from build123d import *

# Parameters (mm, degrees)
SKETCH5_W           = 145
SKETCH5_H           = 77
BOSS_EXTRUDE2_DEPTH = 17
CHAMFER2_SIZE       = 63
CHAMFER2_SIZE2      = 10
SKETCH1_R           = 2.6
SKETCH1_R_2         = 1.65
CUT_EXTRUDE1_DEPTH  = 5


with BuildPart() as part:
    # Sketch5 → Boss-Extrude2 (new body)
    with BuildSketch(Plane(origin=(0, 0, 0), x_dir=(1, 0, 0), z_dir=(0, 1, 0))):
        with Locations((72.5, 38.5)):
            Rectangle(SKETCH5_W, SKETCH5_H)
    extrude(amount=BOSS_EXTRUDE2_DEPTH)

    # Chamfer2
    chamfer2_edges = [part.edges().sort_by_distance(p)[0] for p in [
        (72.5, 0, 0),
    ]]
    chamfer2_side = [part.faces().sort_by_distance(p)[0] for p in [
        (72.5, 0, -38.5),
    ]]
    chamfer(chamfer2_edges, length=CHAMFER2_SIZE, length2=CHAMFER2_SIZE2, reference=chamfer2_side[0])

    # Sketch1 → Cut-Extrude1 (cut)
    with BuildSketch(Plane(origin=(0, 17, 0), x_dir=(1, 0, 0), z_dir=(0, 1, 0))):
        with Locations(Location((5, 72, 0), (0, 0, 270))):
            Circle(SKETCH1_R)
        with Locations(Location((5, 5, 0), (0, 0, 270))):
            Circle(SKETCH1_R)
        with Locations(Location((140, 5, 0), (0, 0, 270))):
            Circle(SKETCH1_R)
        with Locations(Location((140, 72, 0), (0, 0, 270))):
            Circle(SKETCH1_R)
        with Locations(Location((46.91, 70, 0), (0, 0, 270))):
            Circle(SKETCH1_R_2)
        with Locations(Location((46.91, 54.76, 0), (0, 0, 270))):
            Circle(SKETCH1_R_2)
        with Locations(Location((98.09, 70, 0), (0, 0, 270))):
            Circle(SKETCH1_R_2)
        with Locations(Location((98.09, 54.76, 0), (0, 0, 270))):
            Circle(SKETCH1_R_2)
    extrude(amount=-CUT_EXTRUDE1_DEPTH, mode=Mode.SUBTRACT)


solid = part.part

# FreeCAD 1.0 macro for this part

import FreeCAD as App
import Part
import Sketcher


def edges_at(feature, points):
    """Names of the edges that pass closest to the given points."""
    edges = feature.Shape.Edges
    near = lambda p: min(range(len(edges)), key=lambda i: edges[i].distToShape(Part.Vertex(*p))[0])
    return sorted({f"Edge{near(p) + 1}" for p in points})

doc = App.newDocument("Part")
body = doc.addObject("PartDesign::Body", "Body")

# Sketch on XZ plane
sketch1 = body.newObject("Sketcher::SketchObject", "Sketch")
sketch1.AttachmentSupport = (doc.getObject("XZ_Plane"), [""])
sketch1.MapMode = "FlatFace"
sketch1.addGeometry([
    Part.LineSegment(App.Vector(0, -77, 0), App.Vector(0, 0, 0)),
    Part.LineSegment(App.Vector(0, 0, 0), App.Vector(145, 0, 0)),
    Part.LineSegment(App.Vector(145, 0, 0), App.Vector(145, -77, 0)),
    Part.LineSegment(App.Vector(145, -77, 0), App.Vector(0, -77, 0)),
], False)
sketch1.addConstraint([
    Sketcher.Constraint("Coincident", 0, 2, 1, 1),
    Sketcher.Constraint("Coincident", 1, 2, 2, 1),
    Sketcher.Constraint("Coincident", 2, 2, 3, 1),
    Sketcher.Constraint("Coincident", 3, 2, 0, 1),
    Sketcher.Constraint("Vertical", 0),
    Sketcher.Constraint("Horizontal", 1),
    Sketcher.Constraint("Vertical", 2),
    Sketcher.Constraint("Horizontal", 3),
    Sketcher.Constraint("Coincident", 0, 2, -1, 1),
    Sketcher.Constraint("DistanceX", 1, 1, 1, 2, 145.0),
    Sketcher.Constraint("DistanceY", 0, 1, 0, 2, 77.0),
])
pad1 = body.newObject("PartDesign::Pad", "Pad")
pad1.Profile = sketch1
pad1.Length = 17
pad1.Reversed = True
doc.recompute()

chamfer = body.newObject("PartDesign::Chamfer", "Chamfer")
chamfer.Base = (pad1, edges_at(pad1, [(72.5, 0, 0)]))
chamfer.ChamferType = "Two distances"
chamfer.Size = 63
chamfer.Size2 = 10
chamfer.FlipDirection = True

# Sketch on XZ plane
sketch2 = body.newObject("Sketcher::SketchObject", "Sketch001")
sketch2.AttachmentSupport = (doc.getObject("XZ_Plane"), [""])
sketch2.MapMode = "FlatFace"
sketch2.AttachmentOffset = App.Placement(App.Vector(0, 0, -17), App.Rotation())
sketch2.addGeometry([
    Part.Circle(App.Vector(5, -72, 0), App.Vector(0, 0, 1), 2.6),  # 0
    Part.Circle(App.Vector(5, -5, 0), App.Vector(0, 0, 1), 2.6),  # 1
    Part.Circle(App.Vector(140, -5, 0), App.Vector(0, 0, 1), 2.6),  # 2
    Part.Circle(App.Vector(140, -72, 0), App.Vector(0, 0, 1), 2.6),  # 3
    Part.Circle(App.Vector(46.9, -70, 0), App.Vector(0, 0, 1), 1.6),  # 4
    Part.Circle(App.Vector(46.9, -54.8, 0), App.Vector(0, 0, 1), 1.6),  # 5
    Part.Circle(App.Vector(98.1, -70, 0), App.Vector(0, 0, 1), 1.6),  # 6
    Part.Circle(App.Vector(98.1, -54.8, 0), App.Vector(0, 0, 1), 1.6),  # 7
], False)
sketch2.addConstraint([
    Sketcher.Constraint("Equal", 0, 1),
    Sketcher.Constraint("Equal", 1, 2),
    Sketcher.Constraint("Equal", 2, 3),
    Sketcher.Constraint("Equal", 4, 5),
    Sketcher.Constraint("Equal", 5, 6),
    Sketcher.Constraint("Equal", 6, 7),
    Sketcher.Constraint("Horizontal", 1, 3, 2, 3),
    Sketcher.Constraint("Horizontal", 0, 3, 3, 3),
    Sketcher.Constraint("Horizontal", 4, 3, 6, 3),
    Sketcher.Constraint("Horizontal", 5, 3, 7, 3),
    Sketcher.Constraint("Vertical", 0, 3, 1, 3),
    Sketcher.Constraint("Vertical", 2, 3, 3, 3),
    Sketcher.Constraint("Vertical", 4, 3, 5, 3),
    Sketcher.Constraint("Vertical", 6, 3, 7, 3),
    Sketcher.Constraint("Diameter", 0, 5.2),
    Sketcher.Constraint("Diameter", 4, 3.3),
    Sketcher.Constraint("DistanceX", -1, 1, 0, 3, 5.0),
    Sketcher.Constraint("DistanceY", 0, 3, -1, 1, 72.0),
    Sketcher.Constraint("DistanceY", 1, 3, -1, 1, 5.0),
    Sketcher.Constraint("DistanceX", -1, 1, 2, 3, 140.0),
    Sketcher.Constraint("DistanceY", 4, 3, -1, 1, 70.0),
    Sketcher.Constraint("DistanceX", -1, 1, 4, 3, 46.91),
    Sketcher.Constraint("DistanceY", 5, 3, -1, 1, 54.76),
    Sketcher.Constraint("DistanceX", -1, 1, 6, 3, 98.09),
])
pocket1 = body.newObject("PartDesign::Pocket", "Pocket")
pocket1.Profile = sketch2
pocket1.Length = 5
pocket1.Reversed = True

doc.recompute()
